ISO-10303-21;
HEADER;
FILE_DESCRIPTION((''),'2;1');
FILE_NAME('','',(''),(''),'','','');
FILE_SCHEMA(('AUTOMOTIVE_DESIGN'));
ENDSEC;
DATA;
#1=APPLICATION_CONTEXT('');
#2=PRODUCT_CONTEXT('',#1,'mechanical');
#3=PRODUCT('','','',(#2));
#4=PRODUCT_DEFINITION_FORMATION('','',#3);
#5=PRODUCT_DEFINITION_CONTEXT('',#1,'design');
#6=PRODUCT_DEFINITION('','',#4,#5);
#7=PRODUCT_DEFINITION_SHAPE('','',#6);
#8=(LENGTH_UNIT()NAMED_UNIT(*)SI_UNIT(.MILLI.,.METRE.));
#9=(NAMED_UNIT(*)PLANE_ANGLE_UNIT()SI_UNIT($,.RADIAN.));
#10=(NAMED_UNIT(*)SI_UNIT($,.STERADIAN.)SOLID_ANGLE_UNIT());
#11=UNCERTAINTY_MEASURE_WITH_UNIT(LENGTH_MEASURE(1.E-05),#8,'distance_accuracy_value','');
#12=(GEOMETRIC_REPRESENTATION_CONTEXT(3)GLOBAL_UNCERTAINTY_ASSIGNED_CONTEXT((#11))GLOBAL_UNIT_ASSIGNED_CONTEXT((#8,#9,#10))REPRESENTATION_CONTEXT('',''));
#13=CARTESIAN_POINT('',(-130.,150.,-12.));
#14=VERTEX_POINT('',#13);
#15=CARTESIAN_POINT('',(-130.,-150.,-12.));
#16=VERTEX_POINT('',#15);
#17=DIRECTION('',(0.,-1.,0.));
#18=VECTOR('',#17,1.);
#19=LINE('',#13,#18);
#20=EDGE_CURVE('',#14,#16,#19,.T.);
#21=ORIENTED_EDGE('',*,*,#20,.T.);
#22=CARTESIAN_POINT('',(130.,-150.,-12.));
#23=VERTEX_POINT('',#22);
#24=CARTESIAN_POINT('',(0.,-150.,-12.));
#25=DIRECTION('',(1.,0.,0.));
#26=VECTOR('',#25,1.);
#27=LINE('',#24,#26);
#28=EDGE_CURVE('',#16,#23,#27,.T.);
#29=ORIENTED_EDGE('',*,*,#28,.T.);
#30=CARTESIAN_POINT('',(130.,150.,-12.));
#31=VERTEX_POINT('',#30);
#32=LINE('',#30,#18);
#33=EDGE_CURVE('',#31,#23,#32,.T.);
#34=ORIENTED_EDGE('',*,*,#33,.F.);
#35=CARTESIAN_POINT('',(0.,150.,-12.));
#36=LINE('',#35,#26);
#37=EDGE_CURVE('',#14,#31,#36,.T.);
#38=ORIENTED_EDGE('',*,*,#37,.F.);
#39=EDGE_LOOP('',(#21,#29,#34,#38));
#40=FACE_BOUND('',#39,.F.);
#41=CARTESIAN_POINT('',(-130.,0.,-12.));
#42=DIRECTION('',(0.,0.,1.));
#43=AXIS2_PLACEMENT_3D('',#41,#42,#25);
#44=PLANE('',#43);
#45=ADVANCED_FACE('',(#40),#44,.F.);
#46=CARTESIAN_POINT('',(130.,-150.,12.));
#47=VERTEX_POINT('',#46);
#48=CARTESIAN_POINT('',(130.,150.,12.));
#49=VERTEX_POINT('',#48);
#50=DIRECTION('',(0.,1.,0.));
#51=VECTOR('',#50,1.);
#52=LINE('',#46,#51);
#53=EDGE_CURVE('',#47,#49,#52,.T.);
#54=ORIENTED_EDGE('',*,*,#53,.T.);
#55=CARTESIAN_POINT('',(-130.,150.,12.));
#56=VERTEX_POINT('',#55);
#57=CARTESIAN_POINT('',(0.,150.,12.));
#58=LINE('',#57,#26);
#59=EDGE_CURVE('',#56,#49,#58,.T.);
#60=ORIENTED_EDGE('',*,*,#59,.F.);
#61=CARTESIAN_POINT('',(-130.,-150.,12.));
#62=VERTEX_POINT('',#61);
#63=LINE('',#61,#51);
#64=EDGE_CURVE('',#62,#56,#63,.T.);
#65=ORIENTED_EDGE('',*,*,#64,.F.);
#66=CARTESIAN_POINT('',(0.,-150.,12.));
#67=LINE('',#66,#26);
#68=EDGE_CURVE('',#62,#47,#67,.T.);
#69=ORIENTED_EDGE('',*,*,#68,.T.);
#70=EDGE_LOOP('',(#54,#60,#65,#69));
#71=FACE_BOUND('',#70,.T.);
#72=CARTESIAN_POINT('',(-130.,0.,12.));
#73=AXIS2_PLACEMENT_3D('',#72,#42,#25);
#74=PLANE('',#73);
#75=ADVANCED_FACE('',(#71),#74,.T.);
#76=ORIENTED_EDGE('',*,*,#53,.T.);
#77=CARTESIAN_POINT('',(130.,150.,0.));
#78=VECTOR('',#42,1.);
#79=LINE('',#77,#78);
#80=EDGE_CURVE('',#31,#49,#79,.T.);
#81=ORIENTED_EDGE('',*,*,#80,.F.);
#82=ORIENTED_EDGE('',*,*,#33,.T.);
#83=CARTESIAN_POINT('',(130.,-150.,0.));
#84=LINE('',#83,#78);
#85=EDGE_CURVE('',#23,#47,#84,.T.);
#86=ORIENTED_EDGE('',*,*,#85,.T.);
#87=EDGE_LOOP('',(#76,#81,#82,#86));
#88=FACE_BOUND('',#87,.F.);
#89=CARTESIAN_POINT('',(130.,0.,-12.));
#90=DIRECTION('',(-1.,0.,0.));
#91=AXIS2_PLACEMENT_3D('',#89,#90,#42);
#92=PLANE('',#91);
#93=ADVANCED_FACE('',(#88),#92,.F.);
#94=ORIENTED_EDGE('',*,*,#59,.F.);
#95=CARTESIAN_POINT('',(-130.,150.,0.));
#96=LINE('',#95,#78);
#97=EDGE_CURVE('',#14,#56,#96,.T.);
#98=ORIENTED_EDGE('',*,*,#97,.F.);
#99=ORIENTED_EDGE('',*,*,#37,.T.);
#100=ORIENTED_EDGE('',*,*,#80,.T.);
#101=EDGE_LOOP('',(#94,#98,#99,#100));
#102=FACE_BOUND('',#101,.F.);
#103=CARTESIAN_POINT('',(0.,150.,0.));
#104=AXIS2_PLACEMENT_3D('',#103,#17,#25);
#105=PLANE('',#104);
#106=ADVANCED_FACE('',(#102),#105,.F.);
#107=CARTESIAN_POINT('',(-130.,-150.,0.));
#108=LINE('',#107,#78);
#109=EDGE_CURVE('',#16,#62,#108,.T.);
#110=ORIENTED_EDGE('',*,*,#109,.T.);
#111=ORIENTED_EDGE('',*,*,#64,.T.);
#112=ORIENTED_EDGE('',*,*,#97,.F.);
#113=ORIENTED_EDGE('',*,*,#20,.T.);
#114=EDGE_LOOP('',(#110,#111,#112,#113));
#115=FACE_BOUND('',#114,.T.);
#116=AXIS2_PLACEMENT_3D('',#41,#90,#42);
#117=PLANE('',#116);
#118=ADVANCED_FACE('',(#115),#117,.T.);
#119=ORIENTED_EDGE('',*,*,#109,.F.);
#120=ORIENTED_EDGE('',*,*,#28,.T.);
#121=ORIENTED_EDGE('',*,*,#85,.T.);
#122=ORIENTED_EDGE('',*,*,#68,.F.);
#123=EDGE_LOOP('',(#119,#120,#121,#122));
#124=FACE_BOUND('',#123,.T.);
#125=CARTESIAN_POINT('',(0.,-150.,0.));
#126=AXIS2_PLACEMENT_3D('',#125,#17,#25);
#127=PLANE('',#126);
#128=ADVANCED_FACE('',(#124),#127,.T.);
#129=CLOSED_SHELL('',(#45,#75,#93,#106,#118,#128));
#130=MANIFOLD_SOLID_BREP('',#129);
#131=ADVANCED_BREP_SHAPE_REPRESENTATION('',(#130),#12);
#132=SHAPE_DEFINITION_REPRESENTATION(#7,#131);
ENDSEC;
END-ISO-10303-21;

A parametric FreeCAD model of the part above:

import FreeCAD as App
import Part
import Sketcher
from FreeCAD import Vector

doc = App.newDocument("Part")
body = doc.addObject("PartDesign::Body", "Body")

# Sketch on XZ plane
sketch1 = body.newObject("Sketcher::SketchObject", "Sketch")
sketch1.AttachmentSupport = (doc.getObject("XZ_Plane"), [""])
sketch1.MapMode = "FlatFace"
sketch1.addGeometry([
    Part.LineSegment(Vector(-130, 12, 0), Vector(-130, -12, 0)),
    Part.LineSegment(Vector(-130, -12, 0), Vector(130, -12, 0)),
    Part.LineSegment(Vector(130, -12, 0), Vector(130, 12, 0)),
    Part.LineSegment(Vector(130, 12, 0), Vector(-130, 12, 0)),
], False)
sketch1.addConstraint([
    Sketcher.Constraint("Coincident", 0, 2, 1, 1),
    Sketcher.Constraint("Coincident", 1, 2, 2, 1),
    Sketcher.Constraint("Coincident", 2, 2, 3, 1),
    Sketcher.Constraint("Coincident", 3, 2, 0, 1),
    Sketcher.Constraint("Vertical", 0),
    Sketcher.Constraint("Horizontal", 1),
    Sketcher.Constraint("Vertical", 2),
    Sketcher.Constraint("Horizontal", 3),
    Sketcher.Constraint("Symmetric", 0, 2, 2, 2, -1, 1),
    Sketcher.Constraint("DistanceX", 1, 1, 1, 2, 260.0),
    Sketcher.Constraint("DistanceY", 0, 2, 0, 1, 24.0),
])
pad1 = body.newObject("PartDesign::Pad", "Pad")
pad1.Profile = sketch1
pad1.Type = "TwoLengths"
pad1.Length = 150
pad1.Length2 = 150
pad1.Reversed = True

doc.recompute()
